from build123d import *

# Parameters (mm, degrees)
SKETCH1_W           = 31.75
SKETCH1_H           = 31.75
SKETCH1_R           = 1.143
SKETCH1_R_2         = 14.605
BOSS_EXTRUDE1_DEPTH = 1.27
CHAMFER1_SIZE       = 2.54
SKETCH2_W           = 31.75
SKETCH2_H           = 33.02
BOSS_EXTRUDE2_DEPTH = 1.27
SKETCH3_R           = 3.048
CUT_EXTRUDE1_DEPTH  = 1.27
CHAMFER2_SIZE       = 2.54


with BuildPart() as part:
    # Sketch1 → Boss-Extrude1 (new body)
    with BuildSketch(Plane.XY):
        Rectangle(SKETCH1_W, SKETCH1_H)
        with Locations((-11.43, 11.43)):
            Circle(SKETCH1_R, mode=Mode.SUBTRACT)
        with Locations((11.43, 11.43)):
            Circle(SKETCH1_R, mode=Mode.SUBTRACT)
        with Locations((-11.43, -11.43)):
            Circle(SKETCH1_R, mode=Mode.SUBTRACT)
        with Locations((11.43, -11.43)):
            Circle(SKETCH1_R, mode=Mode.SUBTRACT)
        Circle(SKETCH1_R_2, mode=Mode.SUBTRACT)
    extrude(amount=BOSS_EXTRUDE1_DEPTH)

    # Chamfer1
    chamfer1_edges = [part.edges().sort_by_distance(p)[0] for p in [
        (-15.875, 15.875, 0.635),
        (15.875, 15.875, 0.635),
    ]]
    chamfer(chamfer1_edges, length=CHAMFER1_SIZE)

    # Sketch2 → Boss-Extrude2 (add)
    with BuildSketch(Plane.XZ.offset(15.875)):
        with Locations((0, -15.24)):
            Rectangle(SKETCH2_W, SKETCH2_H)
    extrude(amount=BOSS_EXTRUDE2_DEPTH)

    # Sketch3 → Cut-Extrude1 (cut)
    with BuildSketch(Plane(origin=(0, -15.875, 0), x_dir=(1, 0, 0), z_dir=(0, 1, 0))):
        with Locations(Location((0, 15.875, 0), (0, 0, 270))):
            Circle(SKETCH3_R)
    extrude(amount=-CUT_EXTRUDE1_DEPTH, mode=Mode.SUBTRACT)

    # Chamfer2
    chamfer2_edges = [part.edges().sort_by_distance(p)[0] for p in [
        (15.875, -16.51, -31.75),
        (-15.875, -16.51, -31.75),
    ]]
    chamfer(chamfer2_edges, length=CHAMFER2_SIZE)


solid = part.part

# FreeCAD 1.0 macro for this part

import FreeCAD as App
import Part
import Sketcher
Q = App.Units.Quantity


def edges_at(feature, points):
    """Names of the edges that pass closest to the given points."""
    edges = feature.Shape.Edges
    near = lambda p: min(range(len(edges)), key=lambda i: edges[i].distToShape(Part.Vertex(*p))[0])
    return sorted({f"Edge{near(p) + 1}" for p in points})


def add_polygon(sketch, points):
    """Adds a closed chain of lines whose ends are joined by coincident constraints."""
    first, n = sketch.GeometryCount, len(points)
    for a, b in zip(points, points[1:] + points[:1]):
        sketch.addGeometry(Part.LineSegment(App.Vector(*a, 0), App.Vector(*b, 0)), False)
    for i in range(n):
        sketch.addConstraint(Sketcher.Constraint("Coincident", first + i, 2, first + (i + 1) % n, 1))

doc = App.newDocument("Part")
params = doc.addObject("Spreadsheet::Sheet", "Params")
for row, (alias, value) in enumerate([
    ("sketch1_diameter", "0.09 in"),
    ("sketch1_diameter2", "1.15 in"),
    ("sketch1_width", "1.25 in"),
    ("pad1_length", "0.05 in"),
    ("chamfer_size", "0.1 in"),
    ("sketch2_height", "1.3 in"),
    ("sketch2_width", "1.25 in"),
    ("pad2_length", "0.05 in"),
    ("sketch3_diameter", "0.24 in"),
    ("pocket1_length", "0.05 in"),
    ("chamfer2_size", "0.1 in"),
], start=1):
    params.set(f"A{row}", alias)
    params.set(f"B{row}", "=" + value)
    params.setAlias(f"B{row}", alias)

body = doc.addObject("PartDesign::Body", "Body")

# Sketch on XY plane
sketch1 = body.newObject("Sketcher::SketchObject", "Sketch")
sketch1.AttachmentSupport = (doc.getObject("XY_Plane"), [""])
sketch1.MapMode = "FlatFace"
add_polygon(sketch1, [(-15.9, 15.9), (-15.9, -15.9), (15.9, -15.9), (15.9, 15.9)])  # lines 0-3
sketch1.addGeometry(Part.Circle(App.Vector(-11.4, -11.4, 0), App.Vector(0, 0, 1), 1.1), False)  # 4
sketch1.addGeometry(Part.Circle(App.Vector(0, 0, 0), App.Vector(0, 0, 1), 14.6), False)  # 5
sketch1.addGeometry(Part.Circle(App.Vector(11.4, -11.4, 0), App.Vector(0, 0, 1), 1.1), False)  # 6
sketch1.addGeometry(Part.Circle(App.Vector(-11.4, 11.4, 0), App.Vector(0, 0, 1), 1.1), False)  # 7
sketch1.addGeometry(Part.Circle(App.Vector(11.4, 11.4, 0), App.Vector(0, 0, 1), 1.1), False)  # 8
sketch1.addConstraint(Sketcher.Constraint("Vertical", 0))
sketch1.addConstraint(Sketcher.Constraint("Horizontal", 1))
sketch1.addConstraint(Sketcher.Constraint("Vertical", 2))
sketch1.addConstraint(Sketcher.Constraint("Horizontal", 3))
sketch1.addConstraint(Sketcher.Constraint("Coincident", 5, 3, -1, 1))
sketch1.addConstraint(Sketcher.Constraint("Equal", 4, 6))
sketch1.addConstraint(Sketcher.Constraint("Equal", 6, 7))
sketch1.addConstraint(Sketcher.Constraint("Equal", 7, 8))
sketch1.addConstraint(Sketcher.Constraint("Symmetric", 6, 3, 7, 3, -1, 1))
sketch1.addConstraint(Sketcher.Constraint("Symmetric", 4, 3, 8, 3, -1, 1))
sketch1.addConstraint(Sketcher.Constraint("Symmetric", 0, 2, 2, 2, -1, 1))
sketch1.addConstraint(Sketcher.Constraint("Symmetric", 4, 3, 6, 3, -2))
sketch1.addConstraint(Sketcher.Constraint("Equal", 3, 0))
sketch1.addConstraint(Sketcher.Constraint("Diameter", 4, Q("0.09 in")))
sketch1.addConstraint(Sketcher.Constraint("Diameter", 5, Q("1.15 in")))
sketch1.addConstraint(Sketcher.Constraint("DistanceX", 1, 1, 1, 2, Q("1.25 in")))
sketch1.addConstraint(Sketcher.Constraint("DistanceX", 4, 3, 6, 3, Q("0.9 in")))
sketch1.addConstraint(Sketcher.Constraint("DistanceY", 4, 3, 7, 3, Q("0.9 in")))
sketch1.setExpression("Constraints[17]", "Params.sketch1_diameter")
sketch1.setExpression("Constraints[18]", "Params.sketch1_diameter2")
sketch1.setExpression("Constraints[19]", "Params.sketch1_width")
pad1 = body.newObject("PartDesign::Pad", "Pad")
pad1.Profile = sketch1
pad1.setExpression("Length", "Params.pad1_length")
doc.recompute()

chamfer = body.newObject("PartDesign::Chamfer", "Chamfer")
chamfer.Base = (pad1, edges_at(pad1, [(-15.875, 15.875, 0.635), (15.875, 15.875, 0.635)]))
chamfer.setExpression("Size", "Params.chamfer_size")

# Sketch on XZ plane
sketch2 = body.newObject("Sketcher::SketchObject", "Sketch001")
sketch2.AttachmentSupport = (doc.getObject("XZ_Plane"), [""])
sketch2.MapMode = "FlatFace"
sketch2.AttachmentOffset = App.Placement(App.Vector(0, 0, 0.625 * 25.4), App.Rotation())
add_polygon(sketch2, [(-16, 1), (-16, -32), (16, -32), (16, 1)])  # lines 0-3
sketch2.addConstraint(Sketcher.Constraint("Vertical", 0))
sketch2.addConstraint(Sketcher.Constraint("Horizontal", 1))
sketch2.addConstraint(Sketcher.Constraint("Vertical", 2))
sketch2.addConstraint(Sketcher.Constraint("Horizontal", 3))
sketch2.addConstraint(Sketcher.Constraint("DistanceY", 0, 2, 0, 1, Q("1.3 in")))
sketch2.addConstraint(Sketcher.Constraint("DistanceX", 1, 1, 1, 2, Q("1.25 in")))
sketch2.addConstraint(Sketcher.Constraint("DistanceY", 0, 2, -1, 1, Q("1.25 in")))
sketch2.addConstraint(Sketcher.Constraint("DistanceX", 0, 2, -1, 1, Q("0.625 in")))
sketch2.setExpression("Constraints[8]", "Params.sketch2_height")
sketch2.setExpression("Constraints[9]", "Params.sketch2_width")
pad2 = body.newObject("PartDesign::Pad", "Pad001")
pad2.Profile = sketch2
pad2.setExpression("Length", "Params.pad2_length")

# Sketch on XZ plane
sketch3 = body.newObject("Sketcher::SketchObject", "Sketch002")
sketch3.AttachmentSupport = (doc.getObject("XZ_Plane"), [""])
sketch3.MapMode = "FlatFace"
sketch3.AttachmentOffset = App.Placement(App.Vector(0, 0, 0.625 * 25.4), App.Rotation())
sketch3.addGeometry(Part.Circle(App.Vector(0, -15.9, 0), App.Vector(0, 0, 1), 3), False)
sketch3.addConstraint(Sketcher.Constraint("PointOnObject", 0, 3, -2))
sketch3.addConstraint(Sketcher.Constraint("Diameter", 0, Q("0.24 in")))
sketch3.addConstraint(Sketcher.Constraint("DistanceY", 0, 3, -1, 1, Q("0.625 in")))
sketch3.setExpression("Constraints[1]", "Params.sketch3_diameter")
pocket1 = body.newObject("PartDesign::Pocket", "Pocket")
pocket1.Profile = sketch3
pocket1.setExpression("Length", "Params.pocket1_length")
pocket1.Reversed = True
doc.recompute()

chamfer2 = body.newObject("PartDesign::Chamfer", "Chamfer001")
chamfer2.Base = (pocket1, edges_at(pocket1, [(15.875, -16.51, -31.75), (-15.875, -16.51, -31.75)]))
chamfer2.setExpression("Size", "Params.chamfer2_size")

doc.recompute()
